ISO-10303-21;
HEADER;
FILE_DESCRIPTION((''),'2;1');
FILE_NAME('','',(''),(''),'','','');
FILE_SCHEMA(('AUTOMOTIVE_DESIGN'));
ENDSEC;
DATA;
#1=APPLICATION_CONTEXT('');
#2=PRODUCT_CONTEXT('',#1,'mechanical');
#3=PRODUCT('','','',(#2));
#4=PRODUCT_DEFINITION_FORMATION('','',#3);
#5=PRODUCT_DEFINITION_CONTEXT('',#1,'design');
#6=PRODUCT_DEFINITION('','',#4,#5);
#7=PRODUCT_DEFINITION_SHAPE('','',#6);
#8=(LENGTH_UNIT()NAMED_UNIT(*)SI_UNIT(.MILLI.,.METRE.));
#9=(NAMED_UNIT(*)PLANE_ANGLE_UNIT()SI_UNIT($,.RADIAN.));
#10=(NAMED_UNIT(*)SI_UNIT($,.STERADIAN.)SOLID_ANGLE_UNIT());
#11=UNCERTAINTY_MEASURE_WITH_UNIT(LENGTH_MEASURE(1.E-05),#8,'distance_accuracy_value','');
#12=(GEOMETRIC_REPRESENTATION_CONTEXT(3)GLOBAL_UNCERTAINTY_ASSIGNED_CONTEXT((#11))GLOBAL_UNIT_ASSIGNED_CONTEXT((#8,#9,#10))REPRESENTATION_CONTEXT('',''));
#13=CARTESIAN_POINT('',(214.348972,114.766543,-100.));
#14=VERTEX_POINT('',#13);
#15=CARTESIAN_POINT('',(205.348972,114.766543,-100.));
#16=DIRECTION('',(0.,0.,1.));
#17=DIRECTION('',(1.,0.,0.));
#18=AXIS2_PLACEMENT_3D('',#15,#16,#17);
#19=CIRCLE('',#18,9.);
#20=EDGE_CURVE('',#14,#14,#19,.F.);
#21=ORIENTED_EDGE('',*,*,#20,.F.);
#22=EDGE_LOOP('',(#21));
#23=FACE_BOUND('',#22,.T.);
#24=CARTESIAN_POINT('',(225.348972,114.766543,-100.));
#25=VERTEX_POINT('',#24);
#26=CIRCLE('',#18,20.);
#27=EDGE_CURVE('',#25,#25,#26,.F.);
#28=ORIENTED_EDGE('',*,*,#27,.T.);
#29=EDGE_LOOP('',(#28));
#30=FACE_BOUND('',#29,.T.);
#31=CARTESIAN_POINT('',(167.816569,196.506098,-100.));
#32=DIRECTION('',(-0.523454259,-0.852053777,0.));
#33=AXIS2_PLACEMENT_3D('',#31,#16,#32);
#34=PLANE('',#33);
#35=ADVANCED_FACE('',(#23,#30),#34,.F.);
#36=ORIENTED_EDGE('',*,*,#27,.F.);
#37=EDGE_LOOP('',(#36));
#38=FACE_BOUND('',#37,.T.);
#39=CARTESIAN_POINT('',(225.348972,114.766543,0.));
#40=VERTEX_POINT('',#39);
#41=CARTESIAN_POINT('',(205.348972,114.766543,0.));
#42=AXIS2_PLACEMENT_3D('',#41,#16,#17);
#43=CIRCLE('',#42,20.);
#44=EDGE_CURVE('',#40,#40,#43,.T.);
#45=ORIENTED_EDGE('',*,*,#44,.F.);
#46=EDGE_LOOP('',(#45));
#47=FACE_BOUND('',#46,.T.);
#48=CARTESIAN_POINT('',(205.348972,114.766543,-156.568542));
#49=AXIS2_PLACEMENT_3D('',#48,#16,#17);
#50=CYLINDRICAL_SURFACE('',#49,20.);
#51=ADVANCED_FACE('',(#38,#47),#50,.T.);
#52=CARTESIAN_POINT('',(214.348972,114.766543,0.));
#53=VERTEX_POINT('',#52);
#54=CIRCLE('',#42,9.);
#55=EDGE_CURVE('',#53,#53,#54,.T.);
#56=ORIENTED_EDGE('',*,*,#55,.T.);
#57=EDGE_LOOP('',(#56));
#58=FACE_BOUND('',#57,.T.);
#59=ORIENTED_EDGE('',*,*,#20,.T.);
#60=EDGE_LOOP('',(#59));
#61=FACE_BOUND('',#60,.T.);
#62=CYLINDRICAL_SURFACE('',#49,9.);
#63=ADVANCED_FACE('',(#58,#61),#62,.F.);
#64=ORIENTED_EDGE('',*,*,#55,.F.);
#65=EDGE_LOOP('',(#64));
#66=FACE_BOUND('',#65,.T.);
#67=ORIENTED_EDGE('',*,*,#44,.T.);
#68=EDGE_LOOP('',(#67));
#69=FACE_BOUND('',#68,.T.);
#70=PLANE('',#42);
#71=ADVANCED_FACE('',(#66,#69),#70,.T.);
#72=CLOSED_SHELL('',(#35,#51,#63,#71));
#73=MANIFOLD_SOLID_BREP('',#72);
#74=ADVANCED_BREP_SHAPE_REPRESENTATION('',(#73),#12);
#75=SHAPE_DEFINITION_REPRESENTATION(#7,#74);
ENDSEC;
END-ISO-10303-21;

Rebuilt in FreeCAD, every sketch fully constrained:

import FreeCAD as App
import Part
import Sketcher
from FreeCAD import Vector

doc = App.newDocument("Part")
params = doc.addObject("Spreadsheet::Sheet", "Params")
for row, (alias, value) in enumerate([
    ("sketch1_diameter", "40 mm"),
    ("sketch1_diameter2", "18 mm"),
    ("pad1_length", "100 mm"),
], start=1):
    params.set(f"A{row}", alias)
    params.set(f"B{row}", "=" + value)
    params.setAlias(f"B{row}", alias)

body = doc.addObject("PartDesign::Body", "Body")

# Sketch on XY plane
sketch1 = body.newObject("Sketcher::SketchObject", "Sketch")
sketch1.AttachmentSupport = (doc.getObject("XY_Plane"), [""])
sketch1.MapMode = "FlatFace"
sketch1.addGeometry(Part.Circle(Vector(205, 115, 0), Vector(0, 0, 1), 20), False)
sketch1.addGeometry(Part.Circle(Vector(205, 115, 0), Vector(0, 0, 1), 9), False)
sketch1.addConstraint(Sketcher.Constraint("Coincident", 1, 3, 0, 3))
sketch1.addConstraint(Sketcher.Constraint("Diameter", 0, 40.0))
sketch1.addConstraint(Sketcher.Constraint("Diameter", 1, 18.0))
sketch1.addConstraint(Sketcher.Constraint("DistanceX", -1, 1, 0, 3, 205.348972))
sketch1.addConstraint(Sketcher.Constraint("DistanceY", -1, 1, 0, 3, 114.766543))
sketch1.setExpression("Constraints[1]", "Params.sketch1_diameter")
sketch1.setExpression("Constraints[2]", "Params.sketch1_diameter2")
pad1 = body.newObject("PartDesign::Pad", "Pad")
pad1.Profile = sketch1
pad1.setExpression("Length", "Params.pad1_length")
pad1.Reversed = True

doc.recompute()
